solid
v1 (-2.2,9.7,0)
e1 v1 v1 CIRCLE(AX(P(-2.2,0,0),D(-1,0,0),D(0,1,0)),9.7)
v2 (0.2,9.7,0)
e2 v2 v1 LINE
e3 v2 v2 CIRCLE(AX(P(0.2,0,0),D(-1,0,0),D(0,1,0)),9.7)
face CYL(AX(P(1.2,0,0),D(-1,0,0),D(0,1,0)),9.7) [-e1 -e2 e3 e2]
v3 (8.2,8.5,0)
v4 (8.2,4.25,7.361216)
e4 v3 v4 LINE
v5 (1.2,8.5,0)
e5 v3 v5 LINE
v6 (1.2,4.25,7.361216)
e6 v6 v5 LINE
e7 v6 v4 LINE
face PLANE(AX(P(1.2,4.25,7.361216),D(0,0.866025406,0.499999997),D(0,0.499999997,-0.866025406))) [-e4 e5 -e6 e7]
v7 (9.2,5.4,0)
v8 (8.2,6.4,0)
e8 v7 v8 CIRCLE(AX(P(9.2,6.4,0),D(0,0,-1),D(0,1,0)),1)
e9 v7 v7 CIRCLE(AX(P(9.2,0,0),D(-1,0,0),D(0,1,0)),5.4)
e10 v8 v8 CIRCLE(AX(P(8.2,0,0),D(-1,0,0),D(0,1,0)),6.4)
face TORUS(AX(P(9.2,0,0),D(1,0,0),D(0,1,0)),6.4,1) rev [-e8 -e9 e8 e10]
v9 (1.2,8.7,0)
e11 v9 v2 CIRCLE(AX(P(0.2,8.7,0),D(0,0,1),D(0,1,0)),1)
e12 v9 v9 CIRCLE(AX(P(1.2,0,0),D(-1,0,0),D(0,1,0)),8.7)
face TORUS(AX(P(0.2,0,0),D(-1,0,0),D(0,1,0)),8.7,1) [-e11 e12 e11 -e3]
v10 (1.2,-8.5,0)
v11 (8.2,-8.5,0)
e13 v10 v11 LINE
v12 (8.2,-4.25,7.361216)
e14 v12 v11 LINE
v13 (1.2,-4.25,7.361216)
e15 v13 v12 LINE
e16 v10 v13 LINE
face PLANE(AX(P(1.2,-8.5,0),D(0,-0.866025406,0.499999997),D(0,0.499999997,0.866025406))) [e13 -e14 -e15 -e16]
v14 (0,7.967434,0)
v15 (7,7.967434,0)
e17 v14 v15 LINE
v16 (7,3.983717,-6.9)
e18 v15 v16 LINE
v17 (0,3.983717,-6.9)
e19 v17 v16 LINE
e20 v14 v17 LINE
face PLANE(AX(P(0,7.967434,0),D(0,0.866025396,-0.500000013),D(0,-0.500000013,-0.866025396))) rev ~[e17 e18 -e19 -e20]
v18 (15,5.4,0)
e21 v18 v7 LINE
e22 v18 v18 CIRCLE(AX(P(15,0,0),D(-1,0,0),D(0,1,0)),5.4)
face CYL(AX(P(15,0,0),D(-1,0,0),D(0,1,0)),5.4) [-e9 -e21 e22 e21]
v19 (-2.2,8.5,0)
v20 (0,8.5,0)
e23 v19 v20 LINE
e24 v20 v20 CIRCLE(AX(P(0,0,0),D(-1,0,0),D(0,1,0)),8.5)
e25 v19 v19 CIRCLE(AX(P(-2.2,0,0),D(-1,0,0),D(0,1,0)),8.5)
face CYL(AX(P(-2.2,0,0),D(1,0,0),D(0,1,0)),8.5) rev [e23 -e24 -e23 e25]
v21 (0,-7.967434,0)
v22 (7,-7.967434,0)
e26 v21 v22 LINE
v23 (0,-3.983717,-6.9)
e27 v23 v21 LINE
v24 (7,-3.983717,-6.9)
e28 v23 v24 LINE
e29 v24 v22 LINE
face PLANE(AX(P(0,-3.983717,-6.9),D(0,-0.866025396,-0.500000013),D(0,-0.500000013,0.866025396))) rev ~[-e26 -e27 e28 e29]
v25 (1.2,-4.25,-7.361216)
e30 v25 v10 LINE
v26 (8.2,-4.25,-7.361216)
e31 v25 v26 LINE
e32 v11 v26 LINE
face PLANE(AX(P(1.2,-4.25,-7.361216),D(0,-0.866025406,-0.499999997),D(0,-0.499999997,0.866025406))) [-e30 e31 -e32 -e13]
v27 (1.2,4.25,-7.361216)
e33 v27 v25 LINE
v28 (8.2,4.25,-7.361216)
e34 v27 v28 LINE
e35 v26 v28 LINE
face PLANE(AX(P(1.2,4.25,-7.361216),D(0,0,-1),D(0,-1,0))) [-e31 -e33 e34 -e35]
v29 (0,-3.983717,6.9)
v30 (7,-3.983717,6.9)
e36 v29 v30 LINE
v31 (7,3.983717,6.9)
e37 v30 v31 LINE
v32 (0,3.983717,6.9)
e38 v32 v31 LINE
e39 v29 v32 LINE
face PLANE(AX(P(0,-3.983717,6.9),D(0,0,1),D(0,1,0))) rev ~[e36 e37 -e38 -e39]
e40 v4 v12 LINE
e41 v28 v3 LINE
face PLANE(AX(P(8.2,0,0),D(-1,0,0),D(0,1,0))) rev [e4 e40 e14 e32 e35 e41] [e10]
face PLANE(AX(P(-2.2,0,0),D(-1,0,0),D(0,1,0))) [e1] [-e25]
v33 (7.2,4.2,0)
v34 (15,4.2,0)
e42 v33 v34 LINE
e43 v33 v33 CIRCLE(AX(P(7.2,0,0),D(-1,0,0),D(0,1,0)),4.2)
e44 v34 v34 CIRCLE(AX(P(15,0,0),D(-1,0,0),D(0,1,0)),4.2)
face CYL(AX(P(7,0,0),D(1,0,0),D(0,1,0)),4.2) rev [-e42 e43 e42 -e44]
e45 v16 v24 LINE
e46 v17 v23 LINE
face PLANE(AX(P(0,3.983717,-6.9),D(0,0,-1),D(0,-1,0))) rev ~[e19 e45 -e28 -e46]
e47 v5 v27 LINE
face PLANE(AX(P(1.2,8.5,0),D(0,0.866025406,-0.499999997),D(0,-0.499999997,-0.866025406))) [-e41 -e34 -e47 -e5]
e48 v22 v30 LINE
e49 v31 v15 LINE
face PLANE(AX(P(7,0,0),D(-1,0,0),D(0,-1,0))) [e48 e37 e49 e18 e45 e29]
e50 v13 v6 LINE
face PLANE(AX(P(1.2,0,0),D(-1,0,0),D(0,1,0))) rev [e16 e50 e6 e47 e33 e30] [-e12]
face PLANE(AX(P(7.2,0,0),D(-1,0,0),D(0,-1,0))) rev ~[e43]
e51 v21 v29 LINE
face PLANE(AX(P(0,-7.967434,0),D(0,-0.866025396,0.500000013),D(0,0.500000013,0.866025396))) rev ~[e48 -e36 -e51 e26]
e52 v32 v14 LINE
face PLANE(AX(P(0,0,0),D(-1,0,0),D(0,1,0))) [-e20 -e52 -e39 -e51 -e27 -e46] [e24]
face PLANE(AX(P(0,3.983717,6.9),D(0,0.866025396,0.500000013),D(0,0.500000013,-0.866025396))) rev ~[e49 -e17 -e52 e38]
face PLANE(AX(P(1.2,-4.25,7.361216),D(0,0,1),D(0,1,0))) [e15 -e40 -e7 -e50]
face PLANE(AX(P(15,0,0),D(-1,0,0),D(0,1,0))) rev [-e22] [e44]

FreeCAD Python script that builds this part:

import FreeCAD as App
import Part
import Sketcher
Q = App.Units.Quantity


def edges_at(feature, points):
    """Names of the edges that pass closest to the given points."""
    edges = feature.Shape.Edges
    near = lambda p: min(range(len(edges)), key=lambda i: edges[i].distToShape(Part.Vertex(*p))[0])
    return sorted({f"Edge{near(p) + 1}" for p in points})

doc = App.newDocument("Part")
body = doc.addObject("PartDesign::Body", "Body")

sketch1 = body.newObject("Sketcher::SketchObject", "Sketch")
sketch1.AttachmentSupport = (doc.getObject("XY_Plane"), [""])
sketch1.MapMode = "FlatFace"
sketch1.addGeometry([
    Part.LineSegment(App.Vector(0, 8.5, 0), App.Vector(0, 6.7, 0)),
    Part.LineSegment(App.Vector(0, 6.7, 0), App.Vector(7, 6.7, 0)),
    Part.LineSegment(App.Vector(7, 6.7, 0), App.Vector(7, 4.2, 0)),
    Part.LineSegment(App.Vector(7, 4.2, 0), App.Vector(15, 4.2, 0)),
    Part.LineSegment(App.Vector(15, 4.2, 0), App.Vector(15, 5.4, 0)),
    Part.LineSegment(App.Vector(15, 5.4, 0), App.Vector(8.2, 5.4, 0)),
    Part.LineSegment(App.Vector(8.2, 5.4, 0), App.Vector(8.2, 8.5, 0)),
    Part.LineSegment(App.Vector(8.2, 8.5, 0), App.Vector(1.2, 8.5, 0)),
    Part.LineSegment(App.Vector(1.2, 8.5, 0), App.Vector(1.2, 9.7, 0)),
    Part.LineSegment(App.Vector(1.2, 9.7, 0), App.Vector(-2.2, 9.7, 0)),
    Part.LineSegment(App.Vector(-2.2, 9.7, 0), App.Vector(-2.2, 8.5, 0)),
    Part.LineSegment(App.Vector(-2.2, 8.5, 0), App.Vector(0, 8.5, 0)),
], False)
sketch1.addConstraint([
    Sketcher.Constraint("Coincident", 0, 2, 1, 1),
    Sketcher.Constraint("Coincident", 1, 2, 2, 1),
    Sketcher.Constraint("Coincident", 2, 2, 3, 1),
    Sketcher.Constraint("Coincident", 3, 2, 4, 1),
    Sketcher.Constraint("Coincident", 4, 2, 5, 1),
    Sketcher.Constraint("Coincident", 5, 2, 6, 1),
    Sketcher.Constraint("Coincident", 6, 2, 7, 1),
    Sketcher.Constraint("Coincident", 7, 2, 8, 1),
    Sketcher.Constraint("Coincident", 8, 2, 9, 1),
    Sketcher.Constraint("Coincident", 9, 2, 10, 1),
    Sketcher.Constraint("Coincident", 10, 2, 11, 1),
    Sketcher.Constraint("Coincident", 11, 2, 0, 1),
    Sketcher.Constraint("Vertical", 0),
    Sketcher.Constraint("Horizontal", 1),
    Sketcher.Constraint("Vertical", 2),
    Sketcher.Constraint("Horizontal", 3),
    Sketcher.Constraint("Vertical", 4),
    Sketcher.Constraint("Horizontal", 5),
    Sketcher.Constraint("Vertical", 6),
    Sketcher.Constraint("Horizontal", 7),
    Sketcher.Constraint("Vertical", 8),
    Sketcher.Constraint("Horizontal", 9),
    Sketcher.Constraint("Vertical", 10),
    Sketcher.Constraint("Horizontal", 11),
    Sketcher.Constraint("PointOnObject", 0, 2, -2),
    Sketcher.Constraint("Horizontal", 7, 2, 10, 2),
    Sketcher.Constraint("Equal", 1, 7),
    Sketcher.Constraint("Equal", 4, 8),
    Sketcher.Constraint("DistanceX", 1, 1, 1, 2, Q("7 mm")),
    Sketcher.Constraint("DistanceX", 3, 1, 3, 2, Q("8 mm")),
    Sketcher.Constraint("DistanceX", 5, 2, 5, 1, Q("6.8 mm")),
    Sketcher.Constraint("DistanceX", 9, 2, 9, 1, Q("3.4 mm")),
    Sketcher.Constraint("DistanceY", 0, 2, 0, 1, Q("1.8 mm")),
    Sketcher.Constraint("DistanceY", 2, 2, 2, 1, Q("2.5 mm")),
    Sketcher.Constraint("DistanceY", 4, 1, 4, 2, Q("1.2 mm")),
    Sketcher.Constraint("DistanceY", -1, 1, 0, 2, Q("6.7 mm")),
])
revolution = body.newObject("PartDesign::Revolution", "Revolution")
revolution.Profile = sketch1
revolution.ReferenceAxis = (sketch1, ["H_Axis"])
revolution.Angle = 360

sketch2 = body.newObject("Sketcher::SketchObject", "Sketch001")
sketch2.AttachmentSupport = (doc.getObject("YZ_Plane"), [""])
sketch2.MapMode = "FlatFace"
sketch2.addGeometry([
    Part.LineSegment(App.Vector(-4, 7, 0), App.Vector(4, 7, 0)),
    Part.LineSegment(App.Vector(4, 7, 0), App.Vector(8, 0, 0)),
    Part.LineSegment(App.Vector(8, 0, 0), App.Vector(4, -7, 0)),
    Part.LineSegment(App.Vector(4, -7, 0), App.Vector(-4, -7, 0)),
    Part.LineSegment(App.Vector(-4, -7, 0), App.Vector(-8, 0, 0)),
    Part.LineSegment(App.Vector(-8, 0, 0), App.Vector(-4, 7, 0)),
], False)
sketch2.addConstraint([
    Sketcher.Constraint("Coincident", 0, 2, 1, 1),
    Sketcher.Constraint("Coincident", 1, 2, 2, 1),
    Sketcher.Constraint("Coincident", 2, 2, 3, 1),
    Sketcher.Constraint("Coincident", 3, 2, 4, 1),
    Sketcher.Constraint("Coincident", 4, 2, 5, 1),
    Sketcher.Constraint("Coincident", 5, 2, 0, 1),
    Sketcher.Constraint("Horizontal", 0),
    Sketcher.Constraint("Horizontal", 3),
    Sketcher.Constraint("Symmetric", 0, 2, 3, 2, -1, 1),
    Sketcher.Constraint("Symmetric", 1, 2, 4, 2, -1, 1),
    Sketcher.Constraint("PointOnObject", 1, 2, -1),
    Sketcher.Constraint("Parallel", 2, 5),
    Sketcher.Constraint("Vertical", 0, 2, 2, 2),
    Sketcher.Constraint("Angle", 1, Q("-59.999999 deg")),
    Sketcher.Constraint("DistanceY", -1, 1, 0, 2, Q("6.9 mm")),
    Sketcher.Constraint("DistanceX", 0, 1, 0, 2, Q("7.967434 mm")),
])
pocket1 = body.newObject("PartDesign::Pocket", "Pocket")
pocket1.Profile = sketch2
pocket1.Length = 7
pocket1.Reversed = True

sketch3 = body.newObject("Sketcher::SketchObject", "Sketch002")
sketch3.AttachmentSupport = (doc.getObject("YZ_Plane"), [""])
sketch3.MapMode = "FlatFace"
sketch3.AttachmentOffset = App.Placement(App.Vector(0, 0, 1.2), App.Rotation())
sketch3.addGeometry([
    Part.Circle(App.Vector(0, 0, 0), App.Vector(0, 0, 1), 10),
    Part.LineSegment(App.Vector(-4, -7, 0), App.Vector(-8, 0, 0)),
    Part.LineSegment(App.Vector(-8, 0, 0), App.Vector(-4, 7, 0)),
    Part.LineSegment(App.Vector(-4, 7, 0), App.Vector(4, 7, 0)),
    Part.LineSegment(App.Vector(4, 7, 0), App.Vector(8, 0, 0)),
    Part.LineSegment(App.Vector(8, 0, 0), App.Vector(4, -7, 0)),
    Part.LineSegment(App.Vector(4, -7, 0), App.Vector(-4, -7, 0)),
], False)
sketch3.addConstraint([
    Sketcher.Constraint("Coincident", 1, 2, 2, 1),
    Sketcher.Constraint("Coincident", 2, 2, 3, 1),
    Sketcher.Constraint("Coincident", 3, 2, 4, 1),
    Sketcher.Constraint("Coincident", 4, 2, 5, 1),
    Sketcher.Constraint("Coincident", 5, 2, 6, 1),
    Sketcher.Constraint("Coincident", 6, 2, 1, 1),
    Sketcher.Constraint("Horizontal", 3),
    Sketcher.Constraint("Horizontal", 6),
    Sketcher.Constraint("Coincident", 0, 3, -1, 1),
    Sketcher.Constraint("Symmetric", 1, 2, 4, 2, -1, 1),
    Sketcher.Constraint("Symmetric", 2, 2, 5, 2, -1, 1),
    Sketcher.Constraint("PointOnObject", 1, 2, -1),
    Sketcher.Constraint("Parallel", 1, 4),
    Sketcher.Constraint("Vertical", 3, 2, 5, 2),
    Sketcher.Constraint("Angle", 1, Q("120 deg")),
    Sketcher.Constraint("DistanceX", 3, 1, 3, 2, Q("8.5 mm")),
    Sketcher.Constraint("DistanceX", 1, 2, 4, 2, Q("17 mm")),
    Sketcher.Constraint("Diameter", 0, Q("20.271386 mm")),
])
pocket2 = body.newObject("PartDesign::Pocket", "Pocket001")
pocket2.Profile = sketch3
pocket2.Type = "ThroughAll"
pocket2.Reversed = True
doc.recompute()

fillet = body.newObject("PartDesign::Fillet", "Fillet")
fillet.Base = (pocket2, edges_at(pocket2, [(8.2, -5.4, 0)]))
fillet.Radius = 1
doc.recompute()

fillet2 = body.newObject("PartDesign::Fillet", "Fillet001")
fillet2.Base = (fillet, edges_at(fillet, [(1.2, -9.7, 0)]))
fillet2.Radius = 1

sketch4 = body.newObject("Sketcher::SketchObject", "Sketch003")
sketch4.AttachmentSupport = (doc.getObject("YZ_Plane"), [""])
sketch4.MapMode = "FlatFace"
sketch4.AttachmentOffset = App.Placement(App.Vector(0, 0, 7), App.Rotation())
sketch4.addGeometry(Part.Circle(App.Vector(0, 0, 0), App.Vector(0, 0, 1), 4.2), False)
sketch4.addConstraint([
    Sketcher.Constraint("Coincident", 0, 3, -1, 1),
    Sketcher.Constraint("Diameter", 0, Q("8.4 mm")),
])
pad1 = body.newObject("PartDesign::Pad", "Pad")
pad1.Profile = sketch4
pad1.Length = 0.2

doc.recompute()
